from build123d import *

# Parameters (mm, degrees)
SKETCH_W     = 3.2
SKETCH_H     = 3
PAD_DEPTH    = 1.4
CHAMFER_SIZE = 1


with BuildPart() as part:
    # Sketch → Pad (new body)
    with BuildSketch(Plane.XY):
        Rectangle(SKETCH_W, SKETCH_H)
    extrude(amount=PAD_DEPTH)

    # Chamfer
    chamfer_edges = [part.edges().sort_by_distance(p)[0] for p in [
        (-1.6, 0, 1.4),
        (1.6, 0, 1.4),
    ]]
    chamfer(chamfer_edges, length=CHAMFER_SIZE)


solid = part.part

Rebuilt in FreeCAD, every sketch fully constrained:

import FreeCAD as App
import Part
import Sketcher
Q = App.Units.Quantity


def edges_at(feature, points):
    """Names of the edges that pass closest to the given points."""
    edges = feature.Shape.Edges
    near = lambda p: min(range(len(edges)), key=lambda i: edges[i].distToShape(Part.Vertex(*p))[0])
    return sorted({f"Edge{near(p) + 1}" for p in points})

doc = App.newDocument("Part")
body = doc.addObject("PartDesign::Body", "Body")

sketch1 = doc.addObject("Sketcher::SketchObject", "Sketch")
body.addObject(sketch1)
sketch1.AttachmentSupport = (doc.XY_Plane, [""])
sketch1.MapMode = "FlatFace"
sketch1.addGeometry(Part.LineSegment(App.Vector(-1.6, 1.5, 0), App.Vector(-1.6, -1.5, 0)), False)
sketch1.addGeometry(Part.LineSegment(App.Vector(-1.6, -1.5, 0), App.Vector(1.6, -1.5, 0)), False)
sketch1.addGeometry(Part.LineSegment(App.Vector(1.6, -1.5, 0), App.Vector(1.6, 1.5, 0)), False)
sketch1.addGeometry(Part.LineSegment(App.Vector(1.6, 1.5, 0), App.Vector(-1.6, 1.5, 0)), False)
sketch1.addConstraint(Sketcher.Constraint("Coincident", 0, 2, 1, 1))
sketch1.addConstraint(Sketcher.Constraint("Coincident", 1, 2, 2, 1))
sketch1.addConstraint(Sketcher.Constraint("Coincident", 2, 2, 3, 1))
sketch1.addConstraint(Sketcher.Constraint("Coincident", 3, 2, 0, 1))
sketch1.addConstraint(Sketcher.Constraint("Vertical", 0))
sketch1.addConstraint(Sketcher.Constraint("Horizontal", 1))
sketch1.addConstraint(Sketcher.Constraint("Vertical", 2))
sketch1.addConstraint(Sketcher.Constraint("Horizontal", 3))
sketch1.addConstraint(Sketcher.Constraint("Symmetric", 0, 2, 2, 2, -1, 1))
sketch1.addConstraint(Sketcher.Constraint("DistanceY", 0, 2, 0, 1, Q("3 mm")))
sketch1.addConstraint(Sketcher.Constraint("DistanceX", 1, 1, 1, 2, Q("3.2 mm")))
pad1 = doc.addObject("PartDesign::Pad", "Pad")
body.addObject(pad1)
pad1.Profile = sketch1
pad1.Length = 1.4
doc.recompute()

chamfer = doc.addObject("PartDesign::Chamfer", "Chamfer")
body.addObject(chamfer)
chamfer.Base = (pad1, edges_at(pad1, [(-1.6, 0, 1.4), (1.6, 0, 1.4)]))
chamfer.Size = 1

doc.recompute()
